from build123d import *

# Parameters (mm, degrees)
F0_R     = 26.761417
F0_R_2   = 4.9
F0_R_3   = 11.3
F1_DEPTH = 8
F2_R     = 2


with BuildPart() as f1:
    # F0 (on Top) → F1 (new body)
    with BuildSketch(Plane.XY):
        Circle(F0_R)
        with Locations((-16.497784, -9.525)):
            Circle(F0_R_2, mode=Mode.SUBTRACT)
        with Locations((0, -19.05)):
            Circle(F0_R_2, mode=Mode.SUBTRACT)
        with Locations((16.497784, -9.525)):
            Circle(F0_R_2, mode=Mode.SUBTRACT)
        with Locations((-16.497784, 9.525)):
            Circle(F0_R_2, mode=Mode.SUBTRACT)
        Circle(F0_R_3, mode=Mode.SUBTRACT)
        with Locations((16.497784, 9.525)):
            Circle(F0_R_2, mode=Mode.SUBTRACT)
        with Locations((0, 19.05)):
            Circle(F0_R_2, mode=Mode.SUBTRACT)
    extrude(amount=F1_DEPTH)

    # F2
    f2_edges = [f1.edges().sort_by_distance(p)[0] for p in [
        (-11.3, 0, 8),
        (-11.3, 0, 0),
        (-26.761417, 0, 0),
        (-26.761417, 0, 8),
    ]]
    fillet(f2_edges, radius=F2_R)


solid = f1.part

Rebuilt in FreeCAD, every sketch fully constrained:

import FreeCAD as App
import Part
import Sketcher

V = App.Vector
Q = App.Units.Quantity


def edges_at(feature, points):
    """Names of the edges that pass closest to the given points."""
    edges = feature.Shape.Edges
    near = lambda p: min(range(len(edges)), key=lambda i: edges[i].distToShape(Part.Vertex(*p))[0])
    return sorted({f"Edge{near(p) + 1}" for p in points})

doc = App.newDocument("Part")
body = doc.addObject("PartDesign::Body", "Body")

# Sketch on XY plane
sketch1 = doc.addObject("Sketcher::SketchObject", "Sketch")
body.addObject(sketch1)
sketch1.AttachmentSupport = (doc.XY_Plane, [""])
sketch1.MapMode = "FlatFace"
sketch1.addGeometry([
    Part.Circle(V(0, 0, 0), V(0, 0, 1), 26.8),  # 0
    Part.Circle(V(-16.5, -9.5, 0), V(0, 0, 1), 4.9),  # 1
    Part.Circle(V(0, -19.1, 0), V(0, 0, 1), 4.9),  # 2
    Part.Circle(V(16.5, -9.5, 0), V(0, 0, 1), 4.9),  # 3
    Part.Circle(V(-16.5, 9.5, 0), V(0, 0, 1), 4.9),  # 4
    Part.Circle(V(0, 0, 0), V(0, 0, 1), 11.3),  # 5
    Part.Circle(V(16.5, 9.5, 0), V(0, 0, 1), 4.9),  # 6
    Part.Circle(V(0, 19.1, 0), V(0, 0, 1), 4.9),  # 7
], False)
sketch1.addConstraint([
    Sketcher.Constraint("Coincident", 0, 3, -1, 1),
    Sketcher.Constraint("Coincident", 5, 3, -1, 1),
    Sketcher.Constraint("Equal", 1, 2),
    Sketcher.Constraint("Equal", 2, 3),
    Sketcher.Constraint("Equal", 3, 4),
    Sketcher.Constraint("Equal", 4, 6),
    Sketcher.Constraint("Equal", 6, 7),
    Sketcher.Constraint("Symmetric", 3, 3, 4, 3, -1, 1),
    Sketcher.Constraint("Symmetric", 1, 3, 6, 3, -1, 1),
    Sketcher.Constraint("Symmetric", 2, 3, 7, 3, -1, 1),
    Sketcher.Constraint("Symmetric", 1, 3, 3, 3, -2),
    Sketcher.Constraint("PointOnObject", 2, 3, -2),
    Sketcher.Constraint("Diameter", 1, Q("9.8 mm")),
    Sketcher.Constraint("Diameter", 5, Q("22.6 mm")),
    Sketcher.Constraint("DistanceY", 2, 3, -1, 1, Q("19.05 mm")),
    Sketcher.Constraint("DistanceY", 1, 3, 4, 3, Q("19.05 mm")),
    Sketcher.Constraint("Diameter", 0, Q("53.522834 mm")),
    Sketcher.Constraint("DistanceX", 1, 3, -1, 1, Q("16.497784 mm")),
])
pad1 = doc.addObject("PartDesign::Pad", "Pad")
body.addObject(pad1)
pad1.Profile = sketch1
pad1.Length = 8
doc.recompute()

fillet = doc.addObject("PartDesign::Fillet", "Fillet")
body.addObject(fillet)
fillet.Base = (pad1, edges_at(pad1, [
    (-11.3, 0, 8),
    (-11.3, 0, 0),
    (-26.761, 0, 0),
    (-26.761, 0, 8),
]))
fillet.Radius = 2

doc.recompute()
